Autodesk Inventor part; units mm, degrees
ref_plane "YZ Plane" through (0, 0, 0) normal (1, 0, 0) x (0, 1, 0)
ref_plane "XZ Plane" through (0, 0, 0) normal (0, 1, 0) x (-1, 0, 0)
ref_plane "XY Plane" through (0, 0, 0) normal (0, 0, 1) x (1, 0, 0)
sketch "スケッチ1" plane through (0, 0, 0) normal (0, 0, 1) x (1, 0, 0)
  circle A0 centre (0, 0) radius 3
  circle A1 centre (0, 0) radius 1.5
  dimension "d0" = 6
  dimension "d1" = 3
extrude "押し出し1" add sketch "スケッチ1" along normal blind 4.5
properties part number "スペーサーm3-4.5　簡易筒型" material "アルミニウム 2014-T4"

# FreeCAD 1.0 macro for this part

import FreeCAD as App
import Part
import Sketcher
from FreeCAD import Vector
Q = App.Units.Quantity

doc = App.newDocument("Part")
body = doc.addObject("PartDesign::Body", "Body")

sketch1 = body.newObject("Sketcher::SketchObject", "Sketch")
sketch1.AttachmentSupport = (doc.getObject("XY_Plane"), [""])
sketch1.MapMode = "FlatFace"
sketch1.addGeometry([
    Part.Circle(Vector(0, 0, 0), Vector(0, 0, 1), 3),
    Part.Circle(Vector(0, 0, 0), Vector(0, 0, 1), 1.5),
], False)
sketch1.addConstraint([
    Sketcher.Constraint("Coincident", 0, 3, -1, 1),
    Sketcher.Constraint("Coincident", 1, 3, -1, 1),
    Sketcher.Constraint("Diameter", 0, Q("6 mm")),
    Sketcher.Constraint("Diameter", 1, Q("3 mm")),
])
pad1 = body.newObject("PartDesign::Pad", "Pad")
pad1.Profile = sketch1
pad1.Length = 4.5

doc.recompute()
